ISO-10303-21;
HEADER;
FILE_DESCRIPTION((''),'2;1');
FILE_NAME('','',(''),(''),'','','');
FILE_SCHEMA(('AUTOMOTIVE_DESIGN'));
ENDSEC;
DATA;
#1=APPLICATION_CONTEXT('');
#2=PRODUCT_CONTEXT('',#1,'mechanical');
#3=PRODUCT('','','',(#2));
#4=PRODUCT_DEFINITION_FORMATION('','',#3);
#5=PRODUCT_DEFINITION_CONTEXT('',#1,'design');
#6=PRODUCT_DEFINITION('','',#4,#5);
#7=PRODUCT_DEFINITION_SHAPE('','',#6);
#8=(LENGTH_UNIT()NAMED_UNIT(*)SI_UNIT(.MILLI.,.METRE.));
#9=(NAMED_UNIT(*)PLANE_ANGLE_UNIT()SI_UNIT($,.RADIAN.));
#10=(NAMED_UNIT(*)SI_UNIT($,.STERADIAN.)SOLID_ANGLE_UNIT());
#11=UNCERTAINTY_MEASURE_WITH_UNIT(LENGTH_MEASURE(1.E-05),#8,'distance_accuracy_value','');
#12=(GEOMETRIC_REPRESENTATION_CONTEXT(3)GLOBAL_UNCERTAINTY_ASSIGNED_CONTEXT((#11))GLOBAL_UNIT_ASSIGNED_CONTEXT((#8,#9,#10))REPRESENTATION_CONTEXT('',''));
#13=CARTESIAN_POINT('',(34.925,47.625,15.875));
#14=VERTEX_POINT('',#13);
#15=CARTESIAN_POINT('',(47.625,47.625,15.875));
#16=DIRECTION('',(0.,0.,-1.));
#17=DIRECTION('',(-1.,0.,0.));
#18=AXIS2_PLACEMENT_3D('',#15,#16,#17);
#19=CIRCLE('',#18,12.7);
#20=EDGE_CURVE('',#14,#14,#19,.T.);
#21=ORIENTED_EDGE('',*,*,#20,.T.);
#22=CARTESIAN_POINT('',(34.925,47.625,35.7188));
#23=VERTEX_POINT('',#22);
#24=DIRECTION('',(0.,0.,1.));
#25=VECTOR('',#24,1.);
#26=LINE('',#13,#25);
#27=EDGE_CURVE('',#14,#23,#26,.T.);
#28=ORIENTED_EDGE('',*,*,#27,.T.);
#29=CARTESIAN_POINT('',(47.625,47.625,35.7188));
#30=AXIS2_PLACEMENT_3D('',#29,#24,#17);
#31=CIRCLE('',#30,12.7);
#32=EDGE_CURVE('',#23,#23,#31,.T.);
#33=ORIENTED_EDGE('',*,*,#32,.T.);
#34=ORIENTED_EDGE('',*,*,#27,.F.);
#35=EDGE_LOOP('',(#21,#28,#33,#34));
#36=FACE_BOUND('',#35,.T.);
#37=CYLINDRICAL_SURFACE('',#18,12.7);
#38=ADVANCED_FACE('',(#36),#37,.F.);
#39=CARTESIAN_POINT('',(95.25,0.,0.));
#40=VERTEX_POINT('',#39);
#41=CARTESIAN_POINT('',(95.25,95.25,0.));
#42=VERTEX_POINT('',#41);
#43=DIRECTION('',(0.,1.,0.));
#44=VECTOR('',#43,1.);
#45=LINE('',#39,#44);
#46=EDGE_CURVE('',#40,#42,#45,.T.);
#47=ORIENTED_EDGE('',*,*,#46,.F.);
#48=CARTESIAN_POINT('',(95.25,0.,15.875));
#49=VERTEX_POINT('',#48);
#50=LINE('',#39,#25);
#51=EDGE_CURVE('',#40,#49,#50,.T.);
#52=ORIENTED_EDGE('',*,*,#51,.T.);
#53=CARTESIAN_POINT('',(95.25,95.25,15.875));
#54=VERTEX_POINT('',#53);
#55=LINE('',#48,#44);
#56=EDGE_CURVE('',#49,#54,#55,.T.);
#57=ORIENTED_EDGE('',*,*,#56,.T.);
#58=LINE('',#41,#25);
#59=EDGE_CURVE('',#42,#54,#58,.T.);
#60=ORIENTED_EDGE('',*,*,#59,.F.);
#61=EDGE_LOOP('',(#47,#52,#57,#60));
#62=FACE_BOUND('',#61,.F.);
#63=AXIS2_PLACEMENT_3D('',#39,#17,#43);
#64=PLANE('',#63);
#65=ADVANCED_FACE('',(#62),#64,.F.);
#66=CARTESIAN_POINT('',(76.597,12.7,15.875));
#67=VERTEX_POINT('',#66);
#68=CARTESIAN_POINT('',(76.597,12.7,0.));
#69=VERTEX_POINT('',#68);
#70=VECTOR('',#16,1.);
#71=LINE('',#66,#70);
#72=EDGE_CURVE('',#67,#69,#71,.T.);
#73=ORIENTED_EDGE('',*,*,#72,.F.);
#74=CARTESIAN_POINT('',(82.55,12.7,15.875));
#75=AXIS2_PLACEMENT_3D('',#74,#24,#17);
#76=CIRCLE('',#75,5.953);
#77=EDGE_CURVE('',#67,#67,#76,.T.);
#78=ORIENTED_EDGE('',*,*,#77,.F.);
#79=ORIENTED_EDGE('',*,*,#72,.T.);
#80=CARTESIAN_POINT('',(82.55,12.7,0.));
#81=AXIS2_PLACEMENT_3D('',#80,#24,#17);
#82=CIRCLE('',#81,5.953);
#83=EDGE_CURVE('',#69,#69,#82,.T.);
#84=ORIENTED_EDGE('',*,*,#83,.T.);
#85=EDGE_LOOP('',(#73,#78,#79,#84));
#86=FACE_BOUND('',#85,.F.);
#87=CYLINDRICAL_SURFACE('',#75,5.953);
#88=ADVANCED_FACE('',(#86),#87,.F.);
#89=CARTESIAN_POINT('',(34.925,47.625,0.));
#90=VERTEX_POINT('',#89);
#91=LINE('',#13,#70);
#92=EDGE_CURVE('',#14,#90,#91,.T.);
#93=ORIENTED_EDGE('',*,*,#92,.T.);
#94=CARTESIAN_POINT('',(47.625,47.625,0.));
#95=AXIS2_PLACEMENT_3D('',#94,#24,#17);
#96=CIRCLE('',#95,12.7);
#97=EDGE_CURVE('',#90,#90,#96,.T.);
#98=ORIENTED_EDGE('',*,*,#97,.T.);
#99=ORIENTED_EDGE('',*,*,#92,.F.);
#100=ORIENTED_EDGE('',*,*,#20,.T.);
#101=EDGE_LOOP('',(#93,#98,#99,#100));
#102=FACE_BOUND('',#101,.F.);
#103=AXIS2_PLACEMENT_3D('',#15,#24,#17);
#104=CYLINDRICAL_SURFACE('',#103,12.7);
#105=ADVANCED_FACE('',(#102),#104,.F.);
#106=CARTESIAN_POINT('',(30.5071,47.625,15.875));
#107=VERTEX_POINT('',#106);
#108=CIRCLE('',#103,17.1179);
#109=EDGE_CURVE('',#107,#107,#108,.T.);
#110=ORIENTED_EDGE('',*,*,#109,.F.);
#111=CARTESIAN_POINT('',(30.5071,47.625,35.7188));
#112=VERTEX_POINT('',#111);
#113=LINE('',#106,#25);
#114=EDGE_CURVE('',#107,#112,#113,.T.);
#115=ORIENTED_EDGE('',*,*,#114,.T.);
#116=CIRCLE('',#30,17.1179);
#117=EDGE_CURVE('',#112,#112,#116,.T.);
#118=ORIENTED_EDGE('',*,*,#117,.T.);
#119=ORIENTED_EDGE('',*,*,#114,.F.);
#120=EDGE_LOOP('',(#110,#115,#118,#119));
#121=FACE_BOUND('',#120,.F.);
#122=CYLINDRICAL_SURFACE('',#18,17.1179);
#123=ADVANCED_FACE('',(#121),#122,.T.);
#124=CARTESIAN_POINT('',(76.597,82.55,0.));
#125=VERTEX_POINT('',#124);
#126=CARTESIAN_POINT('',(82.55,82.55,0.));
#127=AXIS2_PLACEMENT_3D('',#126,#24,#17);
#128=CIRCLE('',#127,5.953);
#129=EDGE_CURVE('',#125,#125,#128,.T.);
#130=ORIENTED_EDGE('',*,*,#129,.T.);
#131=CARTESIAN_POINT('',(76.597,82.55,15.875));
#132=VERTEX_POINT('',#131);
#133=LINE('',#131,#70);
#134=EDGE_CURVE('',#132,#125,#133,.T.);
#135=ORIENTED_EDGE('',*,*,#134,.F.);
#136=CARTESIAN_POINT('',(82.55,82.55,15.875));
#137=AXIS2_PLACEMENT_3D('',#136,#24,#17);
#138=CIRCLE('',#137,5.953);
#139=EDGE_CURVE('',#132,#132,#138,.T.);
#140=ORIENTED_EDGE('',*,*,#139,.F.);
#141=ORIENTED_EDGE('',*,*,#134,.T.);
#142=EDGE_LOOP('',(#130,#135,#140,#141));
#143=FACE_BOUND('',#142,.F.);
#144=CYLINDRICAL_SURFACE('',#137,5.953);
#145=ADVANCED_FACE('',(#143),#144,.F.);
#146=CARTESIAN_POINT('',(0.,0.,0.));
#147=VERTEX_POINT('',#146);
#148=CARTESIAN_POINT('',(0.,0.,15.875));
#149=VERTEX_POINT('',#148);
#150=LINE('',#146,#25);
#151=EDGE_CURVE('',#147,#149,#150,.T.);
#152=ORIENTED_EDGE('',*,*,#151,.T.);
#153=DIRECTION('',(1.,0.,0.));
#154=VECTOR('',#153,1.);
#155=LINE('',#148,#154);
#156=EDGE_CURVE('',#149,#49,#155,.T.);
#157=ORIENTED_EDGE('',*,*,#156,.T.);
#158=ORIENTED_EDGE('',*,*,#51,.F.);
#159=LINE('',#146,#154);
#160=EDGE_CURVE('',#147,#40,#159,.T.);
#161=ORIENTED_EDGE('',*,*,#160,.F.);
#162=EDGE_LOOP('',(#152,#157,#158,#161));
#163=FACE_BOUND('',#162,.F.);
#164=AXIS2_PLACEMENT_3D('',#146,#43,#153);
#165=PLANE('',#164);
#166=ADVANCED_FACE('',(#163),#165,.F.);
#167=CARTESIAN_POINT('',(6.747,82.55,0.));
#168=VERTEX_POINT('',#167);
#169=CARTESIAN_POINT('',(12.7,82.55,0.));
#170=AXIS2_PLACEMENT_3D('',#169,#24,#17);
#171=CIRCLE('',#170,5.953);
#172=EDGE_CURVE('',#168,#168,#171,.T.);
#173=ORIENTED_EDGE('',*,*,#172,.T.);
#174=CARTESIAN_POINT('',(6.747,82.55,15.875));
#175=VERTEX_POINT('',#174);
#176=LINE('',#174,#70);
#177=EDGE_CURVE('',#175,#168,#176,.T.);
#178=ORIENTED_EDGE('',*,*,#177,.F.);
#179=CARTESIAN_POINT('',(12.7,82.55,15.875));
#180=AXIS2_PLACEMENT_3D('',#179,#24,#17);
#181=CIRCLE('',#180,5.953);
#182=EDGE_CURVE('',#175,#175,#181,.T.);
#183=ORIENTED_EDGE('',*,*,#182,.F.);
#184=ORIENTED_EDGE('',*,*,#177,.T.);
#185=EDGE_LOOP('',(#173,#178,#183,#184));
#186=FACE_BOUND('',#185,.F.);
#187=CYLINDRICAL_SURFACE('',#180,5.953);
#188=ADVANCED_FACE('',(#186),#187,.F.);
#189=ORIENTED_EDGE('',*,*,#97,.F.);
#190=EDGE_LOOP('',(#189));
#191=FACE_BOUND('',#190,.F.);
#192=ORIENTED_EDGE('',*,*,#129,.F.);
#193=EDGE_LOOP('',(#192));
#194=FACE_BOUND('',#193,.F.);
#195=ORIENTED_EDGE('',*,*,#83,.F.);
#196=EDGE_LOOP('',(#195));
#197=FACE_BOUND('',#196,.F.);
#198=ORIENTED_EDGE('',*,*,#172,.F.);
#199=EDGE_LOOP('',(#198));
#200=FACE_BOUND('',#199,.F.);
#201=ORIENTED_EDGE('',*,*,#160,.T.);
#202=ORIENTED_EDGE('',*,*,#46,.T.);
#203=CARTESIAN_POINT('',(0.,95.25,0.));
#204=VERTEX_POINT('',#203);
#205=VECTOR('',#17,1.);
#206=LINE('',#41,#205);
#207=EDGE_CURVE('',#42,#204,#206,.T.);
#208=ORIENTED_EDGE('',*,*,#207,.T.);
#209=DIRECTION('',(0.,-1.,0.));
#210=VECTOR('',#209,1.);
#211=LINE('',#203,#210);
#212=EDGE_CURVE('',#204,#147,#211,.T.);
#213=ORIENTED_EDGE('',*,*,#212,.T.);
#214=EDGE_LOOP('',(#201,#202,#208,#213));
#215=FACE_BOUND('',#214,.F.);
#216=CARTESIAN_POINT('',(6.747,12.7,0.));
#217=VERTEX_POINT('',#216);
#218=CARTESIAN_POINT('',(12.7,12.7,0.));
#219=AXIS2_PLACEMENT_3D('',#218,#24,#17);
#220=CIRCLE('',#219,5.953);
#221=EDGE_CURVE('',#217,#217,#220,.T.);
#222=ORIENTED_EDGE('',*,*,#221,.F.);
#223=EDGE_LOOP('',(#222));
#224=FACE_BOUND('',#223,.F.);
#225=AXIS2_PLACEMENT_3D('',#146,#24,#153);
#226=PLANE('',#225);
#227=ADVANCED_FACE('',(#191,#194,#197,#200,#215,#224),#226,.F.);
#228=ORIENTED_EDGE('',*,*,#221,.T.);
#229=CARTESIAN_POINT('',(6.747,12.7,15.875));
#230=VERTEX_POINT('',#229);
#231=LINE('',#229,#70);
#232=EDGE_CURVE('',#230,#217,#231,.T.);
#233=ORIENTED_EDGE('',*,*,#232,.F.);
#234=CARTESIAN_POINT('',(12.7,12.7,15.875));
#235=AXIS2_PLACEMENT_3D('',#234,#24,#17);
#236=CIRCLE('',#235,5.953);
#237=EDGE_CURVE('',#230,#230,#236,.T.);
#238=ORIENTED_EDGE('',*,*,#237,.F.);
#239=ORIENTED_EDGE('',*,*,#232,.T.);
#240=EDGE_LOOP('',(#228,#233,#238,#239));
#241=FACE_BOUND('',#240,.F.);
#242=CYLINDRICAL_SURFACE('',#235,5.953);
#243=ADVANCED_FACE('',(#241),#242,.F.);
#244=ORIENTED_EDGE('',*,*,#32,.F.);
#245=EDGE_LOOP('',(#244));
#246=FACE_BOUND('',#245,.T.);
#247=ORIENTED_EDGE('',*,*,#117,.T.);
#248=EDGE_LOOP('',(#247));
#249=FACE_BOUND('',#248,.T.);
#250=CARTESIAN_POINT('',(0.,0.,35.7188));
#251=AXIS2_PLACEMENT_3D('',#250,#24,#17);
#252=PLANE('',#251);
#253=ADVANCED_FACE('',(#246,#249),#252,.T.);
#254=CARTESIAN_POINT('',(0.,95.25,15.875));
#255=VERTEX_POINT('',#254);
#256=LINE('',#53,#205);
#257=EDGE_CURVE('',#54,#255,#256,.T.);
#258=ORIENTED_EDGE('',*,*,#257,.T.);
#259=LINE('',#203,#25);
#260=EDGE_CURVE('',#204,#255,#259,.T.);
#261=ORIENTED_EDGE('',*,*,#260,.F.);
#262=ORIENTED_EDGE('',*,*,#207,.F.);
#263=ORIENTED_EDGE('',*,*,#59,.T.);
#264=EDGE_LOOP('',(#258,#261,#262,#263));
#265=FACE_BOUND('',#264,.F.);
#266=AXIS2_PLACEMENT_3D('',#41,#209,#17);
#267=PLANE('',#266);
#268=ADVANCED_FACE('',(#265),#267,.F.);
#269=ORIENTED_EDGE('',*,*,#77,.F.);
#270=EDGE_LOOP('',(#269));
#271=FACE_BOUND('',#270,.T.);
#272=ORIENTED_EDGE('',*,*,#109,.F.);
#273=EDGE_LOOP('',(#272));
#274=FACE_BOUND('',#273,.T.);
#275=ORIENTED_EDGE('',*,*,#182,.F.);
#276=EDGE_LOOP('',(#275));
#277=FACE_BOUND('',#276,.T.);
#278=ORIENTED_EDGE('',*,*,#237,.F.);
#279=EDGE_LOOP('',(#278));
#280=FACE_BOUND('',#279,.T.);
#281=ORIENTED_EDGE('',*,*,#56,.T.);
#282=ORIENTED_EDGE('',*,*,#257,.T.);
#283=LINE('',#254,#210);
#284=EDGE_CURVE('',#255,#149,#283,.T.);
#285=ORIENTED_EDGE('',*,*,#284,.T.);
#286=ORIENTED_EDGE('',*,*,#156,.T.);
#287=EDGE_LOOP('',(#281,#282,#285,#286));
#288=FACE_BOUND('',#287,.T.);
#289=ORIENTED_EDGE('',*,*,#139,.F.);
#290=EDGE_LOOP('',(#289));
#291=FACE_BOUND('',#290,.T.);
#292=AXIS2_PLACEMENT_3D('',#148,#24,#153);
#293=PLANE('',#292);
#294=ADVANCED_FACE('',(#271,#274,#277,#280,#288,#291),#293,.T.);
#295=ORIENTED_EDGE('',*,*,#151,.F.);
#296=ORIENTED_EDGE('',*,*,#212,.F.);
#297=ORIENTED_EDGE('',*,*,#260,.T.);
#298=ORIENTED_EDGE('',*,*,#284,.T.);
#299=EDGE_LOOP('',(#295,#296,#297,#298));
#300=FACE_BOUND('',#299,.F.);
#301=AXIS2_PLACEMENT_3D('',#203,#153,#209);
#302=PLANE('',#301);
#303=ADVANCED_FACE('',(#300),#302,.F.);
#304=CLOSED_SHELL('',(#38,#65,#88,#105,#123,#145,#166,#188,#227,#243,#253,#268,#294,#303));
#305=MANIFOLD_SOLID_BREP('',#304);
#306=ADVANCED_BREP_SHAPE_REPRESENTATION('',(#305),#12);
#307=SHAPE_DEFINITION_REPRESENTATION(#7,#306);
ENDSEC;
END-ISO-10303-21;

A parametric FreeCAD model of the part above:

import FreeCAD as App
import Part
import Sketcher
Q = App.Units.Quantity

doc = App.newDocument("Part")
params = doc.addObject("Spreadsheet::Sheet", "Params")
for row, (alias, value) in enumerate([
    ("sketch1_width", "3.75 in"),
    ("pad1_length", "0.625 in"),
    ("sketch2_diameter", "1 in"),
    ("pocket1_length", "25 mm"),
    ("sketch3_diameter", "1 in"),
    ("pad2_length", "0.781252 in"),
    ("sketch4_diameter", "0.375 in"),
    ("pocket2_length", "1.1811024 in"),
    ("sketch5_diameter", "0.375 in"),
    ("pocket3_length", "35 mm"),
], start=1):
    params.set(f"A{row}", alias)
    params.set(f"B{row}", "=" + value)
    params.setAlias(f"B{row}", alias)

body = doc.addObject("PartDesign::Body", "Body")

sketch1 = body.newObject("Sketcher::SketchObject", "Sketch")
sketch1.AttachmentSupport = (doc.getObject("XY_Plane"), [""])
sketch1.MapMode = "FlatFace"
sketch1.addGeometry(Part.LineSegment(App.Vector(0, 95, 0), App.Vector(0, 0, 0)), False)
sketch1.addGeometry(Part.LineSegment(App.Vector(0, 0, 0), App.Vector(95, 0, 0)), False)
sketch1.addGeometry(Part.LineSegment(App.Vector(95, 0, 0), App.Vector(95, 95, 0)), False)
sketch1.addGeometry(Part.LineSegment(App.Vector(95, 95, 0), App.Vector(0, 95, 0)), False)
sketch1.addConstraint(Sketcher.Constraint("Coincident", 0, 2, 1, 1))
sketch1.addConstraint(Sketcher.Constraint("Coincident", 1, 2, 2, 1))
sketch1.addConstraint(Sketcher.Constraint("Coincident", 2, 2, 3, 1))
sketch1.addConstraint(Sketcher.Constraint("Coincident", 3, 2, 0, 1))
sketch1.addConstraint(Sketcher.Constraint("Vertical", 0))
sketch1.addConstraint(Sketcher.Constraint("Horizontal", 1))
sketch1.addConstraint(Sketcher.Constraint("Vertical", 2))
sketch1.addConstraint(Sketcher.Constraint("Horizontal", 3))
sketch1.addConstraint(Sketcher.Constraint("Coincident", 0, 2, -1, 1))
sketch1.addConstraint(Sketcher.Constraint("Equal", 3, 0))
sketch1.addConstraint(Sketcher.Constraint("DistanceX", 1, 1, 1, 2, Q("3.75 in")))
sketch1.setExpression("Constraints[10]", "Params.sketch1_width")
pad1 = body.newObject("PartDesign::Pad", "Pad")
pad1.Profile = sketch1
pad1.setExpression("Length", "Params.pad1_length")

sketch2 = body.newObject("Sketcher::SketchObject", "Sketch001")
sketch2.AttachmentSupport = (doc.getObject("XY_Plane"), [""])
sketch2.MapMode = "FlatFace"
sketch2.AttachmentOffset = App.Placement(App.Vector(0, 0, 0.625 * 25.4), App.Rotation())
sketch2.addGeometry(Part.Circle(App.Vector(48, 48, 0), App.Vector(0, 0, 1), 13), False)
sketch2.addConstraint(Sketcher.Constraint("Diameter", 0, Q("1 in")))
sketch2.addConstraint(Sketcher.Constraint("DistanceX", -1, 1, 0, 3, Q("1.875 in")))
sketch2.addConstraint(Sketcher.Constraint("DistanceY", -1, 1, 0, 3, Q("1.875 in")))
sketch2.setExpression("Constraints[0]", "Params.sketch2_diameter")
pocket1 = body.newObject("PartDesign::Pocket", "Pocket")
pocket1.Profile = sketch2
pocket1.setExpression("Length", "Params.pocket1_length")

sketch3 = body.newObject("Sketcher::SketchObject", "Sketch002")
sketch3.AttachmentSupport = (doc.getObject("XY_Plane"), [""])
sketch3.MapMode = "FlatFace"
sketch3.AttachmentOffset = App.Placement(App.Vector(0, 0, 0.625 * 25.4), App.Rotation())
sketch3.addGeometry(Part.Circle(App.Vector(48, 48, 0), App.Vector(0, 0, 1), 17), False)
sketch3.addGeometry(Part.Circle(App.Vector(48, 48, 0), App.Vector(0, 0, 1), 13), False)
sketch3.addConstraint(Sketcher.Constraint("Coincident", 1, 3, 0, 3))
sketch3.addConstraint(Sketcher.Constraint("Diameter", 1, Q("1 in")))
sketch3.addConstraint(Sketcher.Constraint("Diameter", 0, Q("34.2358 mm")))
sketch3.addConstraint(Sketcher.Constraint("DistanceX", -1, 1, 0, 3, Q("1.875 in")))
sketch3.addConstraint(Sketcher.Constraint("DistanceY", -1, 1, 0, 3, Q("1.875 in")))
sketch3.setExpression("Constraints[1]", "Params.sketch3_diameter")
pad2 = body.newObject("PartDesign::Pad", "Pad001")
pad2.Profile = sketch3
pad2.setExpression("Length", "Params.pad2_length")

sketch4 = body.newObject("Sketcher::SketchObject", "Sketch003")
sketch4.AttachmentSupport = (doc.getObject("XY_Plane"), [""])
sketch4.MapMode = "FlatFace"
sketch4.AttachmentOffset = App.Placement(App.Vector(0, 0, 0.625 * 25.4), App.Rotation())
sketch4.addGeometry(Part.Circle(App.Vector(12.7, 82.5, 0), App.Vector(0, 0, 1), 4.8), False)
sketch4.addGeometry(Part.Circle(App.Vector(12.7, 12.7, 0), App.Vector(0, 0, 1), 4.8), False)
sketch4.addGeometry(Part.Circle(App.Vector(82.5, 82.5, 0), App.Vector(0, 0, 1), 4.8), False)
sketch4.addGeometry(Part.Circle(App.Vector(82.5, 12.7, 0), App.Vector(0, 0, 1), 4.8), False)
sketch4.addConstraint(Sketcher.Constraint("Equal", 0, 1))
sketch4.addConstraint(Sketcher.Constraint("Equal", 1, 2))
sketch4.addConstraint(Sketcher.Constraint("Equal", 2, 3))
sketch4.addConstraint(Sketcher.Constraint("Horizontal", 0, 3, 2, 3))
sketch4.addConstraint(Sketcher.Constraint("Horizontal", 1, 3, 3, 3))
sketch4.addConstraint(Sketcher.Constraint("Vertical", 0, 3, 1, 3))
sketch4.addConstraint(Sketcher.Constraint("Vertical", 2, 3, 3, 3))
sketch4.addConstraint(Sketcher.Constraint("Diameter", 0, Q("0.375 in")))
sketch4.addConstraint(Sketcher.Constraint("DistanceX", -1, 1, 0, 3, Q("0.5 in")))
sketch4.addConstraint(Sketcher.Constraint("DistanceY", -1, 1, 1, 3, Q("0.5 in")))
sketch4.addConstraint(Sketcher.Constraint("DistanceY", 1, 3, 0, 3, Q("2.75 in")))
sketch4.addConstraint(Sketcher.Constraint("DistanceX", 0, 3, 2, 3, Q("2.75 in")))
sketch4.setExpression("Constraints[7]", "Params.sketch4_diameter")
pocket2 = body.newObject("PartDesign::Pocket", "Pocket001")
pocket2.Profile = sketch4
pocket2.setExpression("Length", "Params.pocket2_length")

sketch5 = body.newObject("Sketcher::SketchObject", "Sketch004")
sketch5.AttachmentSupport = (doc.getObject("XY_Plane"), [""])
sketch5.MapMode = "FlatFace"
sketch5.AttachmentOffset = App.Placement(App.Vector(0, 0, 0.625 * 25.4), App.Rotation())
sketch5.addGeometry(Part.Circle(App.Vector(12.7, 12.7, 0), App.Vector(0, 0, 1), 6), False)
sketch5.addGeometry(Part.Circle(App.Vector(12.7, 12.7, 0), App.Vector(0, 0, 1), 4.8), False)
sketch5.addGeometry(Part.Circle(App.Vector(12.7, 82.5, 0), App.Vector(0, 0, 1), 6), False)
sketch5.addGeometry(Part.Circle(App.Vector(12.7, 82.5, 0), App.Vector(0, 0, 1), 4.8), False)
sketch5.addGeometry(Part.Circle(App.Vector(82.5, 82.5, 0), App.Vector(0, 0, 1), 6), False)
sketch5.addGeometry(Part.Circle(App.Vector(82.5, 82.5, 0), App.Vector(0, 0, 1), 4.8), False)
sketch5.addGeometry(Part.Circle(App.Vector(82.5, 12.7, 0), App.Vector(0, 0, 1), 6), False)
sketch5.addGeometry(Part.Circle(App.Vector(82.5, 12.7, 0), App.Vector(0, 0, 1), 4.8), False)
sketch5.addConstraint(Sketcher.Constraint("Coincident", 1, 3, 0, 3))
sketch5.addConstraint(Sketcher.Constraint("Coincident", 3, 3, 2, 3))
sketch5.addConstraint(Sketcher.Constraint("Coincident", 5, 3, 4, 3))
sketch5.addConstraint(Sketcher.Constraint("Coincident", 7, 3, 6, 3))
sketch5.addConstraint(Sketcher.Constraint("Equal", 0, 2))
sketch5.addConstraint(Sketcher.Constraint("Equal", 1, 3))
sketch5.addConstraint(Sketcher.Constraint("Equal", 2, 4))
sketch5.addConstraint(Sketcher.Constraint("Equal", 3, 5))
sketch5.addConstraint(Sketcher.Constraint("Equal", 4, 6))
sketch5.addConstraint(Sketcher.Constraint("Equal", 5, 7))
sketch5.addConstraint(Sketcher.Constraint("Horizontal", 3, 3, 4, 3))
sketch5.addConstraint(Sketcher.Constraint("Horizontal", 1, 3, 6, 3))
sketch5.addConstraint(Sketcher.Constraint("Vertical", 1, 3, 2, 3))
sketch5.addConstraint(Sketcher.Constraint("Vertical", 5, 3, 6, 3))
sketch5.addConstraint(Sketcher.Constraint("Diameter", 0, Q("11.906 mm")))
sketch5.addConstraint(Sketcher.Constraint("Diameter", 1, Q("0.375 in")))
sketch5.addConstraint(Sketcher.Constraint("DistanceX", -1, 1, 0, 3, Q("0.5 in")))
sketch5.addConstraint(Sketcher.Constraint("DistanceY", -1, 1, 0, 3, Q("0.5 in")))
sketch5.addConstraint(Sketcher.Constraint("DistanceY", -1, 1, 2, 3, Q("3.25 in")))
sketch5.addConstraint(Sketcher.Constraint("DistanceX", -1, 1, 4, 3, Q("3.25 in")))
sketch5.setExpression("Constraints[15]", "Params.sketch5_diameter")
pocket3 = body.newObject("PartDesign::Pocket", "Pocket002")
pocket3.Profile = sketch5
pocket3.setExpression("Length", "Params.pocket3_length")

doc.recompute()
